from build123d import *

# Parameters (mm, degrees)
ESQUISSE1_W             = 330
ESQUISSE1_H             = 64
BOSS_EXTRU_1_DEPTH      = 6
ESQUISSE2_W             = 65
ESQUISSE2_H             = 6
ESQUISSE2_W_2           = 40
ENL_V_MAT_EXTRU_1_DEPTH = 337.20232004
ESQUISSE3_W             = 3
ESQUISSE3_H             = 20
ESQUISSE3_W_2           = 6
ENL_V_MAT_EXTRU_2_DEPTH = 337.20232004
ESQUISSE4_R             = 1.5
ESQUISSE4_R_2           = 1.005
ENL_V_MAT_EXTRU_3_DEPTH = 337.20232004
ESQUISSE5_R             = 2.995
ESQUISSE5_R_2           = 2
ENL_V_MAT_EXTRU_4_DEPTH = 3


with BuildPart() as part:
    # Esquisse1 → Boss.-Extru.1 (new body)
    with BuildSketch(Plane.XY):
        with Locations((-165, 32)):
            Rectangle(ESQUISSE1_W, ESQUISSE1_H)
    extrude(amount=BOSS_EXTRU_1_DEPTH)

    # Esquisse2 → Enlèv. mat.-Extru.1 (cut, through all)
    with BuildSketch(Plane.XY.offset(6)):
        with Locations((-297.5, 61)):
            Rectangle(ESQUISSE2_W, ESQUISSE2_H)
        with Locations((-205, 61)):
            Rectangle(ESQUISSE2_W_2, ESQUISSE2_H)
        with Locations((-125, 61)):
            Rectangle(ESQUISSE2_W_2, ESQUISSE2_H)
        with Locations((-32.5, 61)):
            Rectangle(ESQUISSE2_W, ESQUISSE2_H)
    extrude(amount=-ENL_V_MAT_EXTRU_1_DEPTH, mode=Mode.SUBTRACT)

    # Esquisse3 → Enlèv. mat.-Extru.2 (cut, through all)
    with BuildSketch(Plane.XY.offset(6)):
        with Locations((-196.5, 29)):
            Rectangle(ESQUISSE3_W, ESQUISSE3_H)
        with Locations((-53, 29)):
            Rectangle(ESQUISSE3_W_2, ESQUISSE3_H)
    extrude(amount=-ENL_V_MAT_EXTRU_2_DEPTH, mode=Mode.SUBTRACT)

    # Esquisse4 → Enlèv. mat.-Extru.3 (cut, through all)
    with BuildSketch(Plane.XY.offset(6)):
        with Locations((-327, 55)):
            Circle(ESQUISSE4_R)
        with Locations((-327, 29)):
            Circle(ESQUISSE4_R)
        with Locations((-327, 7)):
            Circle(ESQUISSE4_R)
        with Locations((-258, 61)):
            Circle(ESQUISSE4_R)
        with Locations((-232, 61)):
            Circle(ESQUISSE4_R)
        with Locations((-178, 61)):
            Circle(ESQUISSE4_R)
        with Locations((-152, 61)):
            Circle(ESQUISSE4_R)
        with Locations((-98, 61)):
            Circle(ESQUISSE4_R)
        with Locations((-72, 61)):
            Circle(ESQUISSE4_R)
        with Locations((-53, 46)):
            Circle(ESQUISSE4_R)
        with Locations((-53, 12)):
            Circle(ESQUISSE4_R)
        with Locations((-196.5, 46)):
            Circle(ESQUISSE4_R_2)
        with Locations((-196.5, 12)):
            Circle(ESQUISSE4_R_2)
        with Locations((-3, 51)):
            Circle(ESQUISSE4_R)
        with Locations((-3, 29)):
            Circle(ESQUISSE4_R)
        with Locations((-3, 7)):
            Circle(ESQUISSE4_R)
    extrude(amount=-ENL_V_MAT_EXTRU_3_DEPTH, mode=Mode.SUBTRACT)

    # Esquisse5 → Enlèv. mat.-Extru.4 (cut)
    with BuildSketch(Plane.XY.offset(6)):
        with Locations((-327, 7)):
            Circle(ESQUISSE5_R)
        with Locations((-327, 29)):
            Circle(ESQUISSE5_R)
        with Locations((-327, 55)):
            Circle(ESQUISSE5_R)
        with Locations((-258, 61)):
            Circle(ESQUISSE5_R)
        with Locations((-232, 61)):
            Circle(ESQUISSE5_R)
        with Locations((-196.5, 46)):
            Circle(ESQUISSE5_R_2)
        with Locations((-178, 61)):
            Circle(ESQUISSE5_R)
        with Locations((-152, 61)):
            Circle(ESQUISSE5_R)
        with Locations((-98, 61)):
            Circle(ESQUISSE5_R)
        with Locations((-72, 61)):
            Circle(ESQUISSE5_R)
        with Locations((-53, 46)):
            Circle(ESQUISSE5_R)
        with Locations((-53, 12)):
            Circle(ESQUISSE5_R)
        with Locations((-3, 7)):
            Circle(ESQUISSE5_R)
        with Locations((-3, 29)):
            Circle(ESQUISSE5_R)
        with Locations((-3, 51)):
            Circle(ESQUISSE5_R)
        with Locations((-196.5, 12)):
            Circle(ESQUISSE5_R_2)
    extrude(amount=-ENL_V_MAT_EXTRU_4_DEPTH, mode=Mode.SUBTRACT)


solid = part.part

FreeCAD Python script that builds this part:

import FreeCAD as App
import Part
import Sketcher
from FreeCAD import Vector

doc = App.newDocument("Part")
body = doc.addObject("PartDesign::Body", "Body")

# Sketch on XY plane
sketch1 = body.newObject("Sketcher::SketchObject", "Sketch")
sketch1.AttachmentSupport = (doc.getObject("XY_Plane"), [""])
sketch1.MapMode = "FlatFace"
sketch1.addGeometry([
    Part.LineSegment(Vector(-330, 64, 0), Vector(-330, 0, 0)),
    Part.LineSegment(Vector(-330, 0, 0), Vector(0, 0, 0)),
    Part.LineSegment(Vector(0, 0, 0), Vector(0, 64, 0)),
    Part.LineSegment(Vector(0, 64, 0), Vector(-330, 64, 0)),
], False)
sketch1.addConstraint([
    Sketcher.Constraint("Coincident", 0, 2, 1, 1),
    Sketcher.Constraint("Coincident", 1, 2, 2, 1),
    Sketcher.Constraint("Coincident", 2, 2, 3, 1),
    Sketcher.Constraint("Coincident", 3, 2, 0, 1),
    Sketcher.Constraint("Vertical", 0),
    Sketcher.Constraint("Horizontal", 1),
    Sketcher.Constraint("Vertical", 2),
    Sketcher.Constraint("Horizontal", 3),
    Sketcher.Constraint("Coincident", 1, 2, -1, 1),
    Sketcher.Constraint("DistanceX", 1, 1, 1, 2, 330.0),
    Sketcher.Constraint("DistanceY", 0, 2, 0, 1, 64.0),
])
pad1 = body.newObject("PartDesign::Pad", "Pad")
pad1.Profile = sketch1
pad1.Length = 6

# Sketch on XY plane
sketch2 = body.newObject("Sketcher::SketchObject", "Sketch001")
sketch2.AttachmentSupport = (doc.getObject("XY_Plane"), [""])
sketch2.MapMode = "FlatFace"
sketch2.AttachmentOffset = App.Placement(Vector(0, 0, 6), App.Rotation())
sketch2.addGeometry([
    Part.LineSegment(Vector(-330, 64, 0), Vector(-330, 58, 0)),  # 0
    Part.LineSegment(Vector(-330, 58, 0), Vector(-265, 58, 0)),  # 1
    Part.LineSegment(Vector(-265, 58, 0), Vector(-265, 64, 0)),  # 2
    Part.LineSegment(Vector(-265, 64, 0), Vector(-330, 64, 0)),  # 3
    Part.LineSegment(Vector(-225, 64, 0), Vector(-225, 58, 0)),  # 4
    Part.LineSegment(Vector(-225, 58, 0), Vector(-185, 58, 0)),  # 5
    Part.LineSegment(Vector(-185, 58, 0), Vector(-185, 64, 0)),  # 6
    Part.LineSegment(Vector(-185, 64, 0), Vector(-225, 64, 0)),  # 7
    Part.LineSegment(Vector(-145, 64, 0), Vector(-145, 58, 0)),  # 8
    Part.LineSegment(Vector(-145, 58, 0), Vector(-105, 58, 0)),  # 9
    Part.LineSegment(Vector(-105, 58, 0), Vector(-105, 64, 0)),  # 10
    Part.LineSegment(Vector(-105, 64, 0), Vector(-145, 64, 0)),  # 11
    Part.LineSegment(Vector(-65, 64, 0), Vector(-65, 58, 0)),  # 12
    Part.LineSegment(Vector(-65, 58, 0), Vector(0, 58, 0)),  # 13
    Part.LineSegment(Vector(0, 58, 0), Vector(0, 64, 0)),  # 14
    Part.LineSegment(Vector(0, 64, 0), Vector(-65, 64, 0)),  # 15
], False)
sketch2.addConstraint([
    Sketcher.Constraint("Coincident", 0, 2, 1, 1),
    Sketcher.Constraint("Coincident", 1, 2, 2, 1),
    Sketcher.Constraint("Coincident", 2, 2, 3, 1),
    Sketcher.Constraint("Coincident", 3, 2, 0, 1),
    Sketcher.Constraint("Coincident", 4, 2, 5, 1),
    Sketcher.Constraint("Coincident", 5, 2, 6, 1),
    Sketcher.Constraint("Coincident", 6, 2, 7, 1),
    Sketcher.Constraint("Coincident", 7, 2, 4, 1),
    Sketcher.Constraint("Coincident", 8, 2, 9, 1),
    Sketcher.Constraint("Coincident", 9, 2, 10, 1),
    Sketcher.Constraint("Coincident", 10, 2, 11, 1),
    Sketcher.Constraint("Coincident", 11, 2, 8, 1),
    Sketcher.Constraint("Coincident", 12, 2, 13, 1),
    Sketcher.Constraint("Coincident", 13, 2, 14, 1),
    Sketcher.Constraint("Coincident", 14, 2, 15, 1),
    Sketcher.Constraint("Coincident", 15, 2, 12, 1),
    Sketcher.Constraint("Vertical", 0),
    Sketcher.Constraint("Horizontal", 1),
    Sketcher.Constraint("Vertical", 2),
    Sketcher.Constraint("Horizontal", 3),
    Sketcher.Constraint("Vertical", 4),
    Sketcher.Constraint("Horizontal", 5),
    Sketcher.Constraint("Vertical", 6),
    Sketcher.Constraint("Horizontal", 7),
    Sketcher.Constraint("Vertical", 8),
    Sketcher.Constraint("Horizontal", 9),
    Sketcher.Constraint("Vertical", 10),
    Sketcher.Constraint("Horizontal", 11),
    Sketcher.Constraint("Vertical", 12),
    Sketcher.Constraint("Horizontal", 13),
    Sketcher.Constraint("Vertical", 14),
    Sketcher.Constraint("Horizontal", 15),
    Sketcher.Constraint("PointOnObject", 13, 2, -2),
    Sketcher.Constraint("Horizontal", 1, 2, 4, 2),
    Sketcher.Constraint("Horizontal", 3, 2, 6, 2),
    Sketcher.Constraint("Horizontal", 5, 2, 8, 2),
    Sketcher.Constraint("Horizontal", 7, 2, 10, 2),
    Sketcher.Constraint("Horizontal", 9, 2, 12, 2),
    Sketcher.Constraint("Horizontal", 11, 2, 14, 2),
    Sketcher.Constraint("Equal", 7, 9),
    Sketcher.Constraint("Equal", 3, 13),
    Sketcher.Constraint("DistanceX", 1, 1, 1, 2, 65.0),
    Sketcher.Constraint("DistanceX", 5, 1, 5, 2, 40.0),
    Sketcher.Constraint("DistanceY", 0, 2, 0, 1, 6.0),
    Sketcher.Constraint("DistanceX", 0, 2, -1, 1, 330.0),
    Sketcher.Constraint("DistanceY", -1, 1, 0, 2, 58.0),
    Sketcher.Constraint("DistanceX", 4, 2, -1, 1, 225.0),
    Sketcher.Constraint("DistanceX", 8, 2, -1, 1, 145.0),
])
pocket1 = body.newObject("PartDesign::Pocket", "Pocket")
pocket1.Profile = sketch2
pocket1.Type = "ThroughAll"

# Sketch on XY plane
sketch3 = body.newObject("Sketcher::SketchObject", "Sketch002")
sketch3.AttachmentSupport = (doc.getObject("XY_Plane"), [""])
sketch3.MapMode = "FlatFace"
sketch3.AttachmentOffset = App.Placement(Vector(0, 0, 6), App.Rotation())
sketch3.addGeometry([
    Part.LineSegment(Vector(-198, 39, 0), Vector(-198, 19, 0)),  # 0
    Part.LineSegment(Vector(-198, 19, 0), Vector(-195, 19, 0)),  # 1
    Part.LineSegment(Vector(-195, 19, 0), Vector(-195, 39, 0)),  # 2
    Part.LineSegment(Vector(-195, 39, 0), Vector(-198, 39, 0)),  # 3
    Part.LineSegment(Vector(-56, 39, 0), Vector(-56, 19, 0)),  # 4
    Part.LineSegment(Vector(-56, 19, 0), Vector(-50, 19, 0)),  # 5
    Part.LineSegment(Vector(-50, 19, 0), Vector(-50, 39, 0)),  # 6
    Part.LineSegment(Vector(-50, 39, 0), Vector(-56, 39, 0)),  # 7
], False)
sketch3.addConstraint([
    Sketcher.Constraint("Coincident", 0, 2, 1, 1),
    Sketcher.Constraint("Coincident", 1, 2, 2, 1),
    Sketcher.Constraint("Coincident", 2, 2, 3, 1),
    Sketcher.Constraint("Coincident", 3, 2, 0, 1),
    Sketcher.Constraint("Coincident", 4, 2, 5, 1),
    Sketcher.Constraint("Coincident", 5, 2, 6, 1),
    Sketcher.Constraint("Coincident", 6, 2, 7, 1),
    Sketcher.Constraint("Coincident", 7, 2, 4, 1),
    Sketcher.Constraint("Vertical", 0),
    Sketcher.Constraint("Horizontal", 1),
    Sketcher.Constraint("Vertical", 2),
    Sketcher.Constraint("Horizontal", 3),
    Sketcher.Constraint("Vertical", 4),
    Sketcher.Constraint("Horizontal", 5),
    Sketcher.Constraint("Vertical", 6),
    Sketcher.Constraint("Horizontal", 7),
    Sketcher.Constraint("Horizontal", 1, 2, 4, 2),
    Sketcher.Constraint("Horizontal", 3, 2, 6, 2),
    Sketcher.Constraint("DistanceX", 1, 1, 1, 2, 3.0),
    Sketcher.Constraint("DistanceX", 5, 1, 5, 2, 6.0),
    Sketcher.Constraint("DistanceY", 0, 2, 0, 1, 20.0),
    Sketcher.Constraint("DistanceX", 0, 2, -1, 1, 198.0),
    Sketcher.Constraint("DistanceY", -1, 1, 0, 2, 19.0),
    Sketcher.Constraint("DistanceX", 4, 2, -1, 1, 56.0),
])
pocket2 = body.newObject("PartDesign::Pocket", "Pocket001")
pocket2.Profile = sketch3
pocket2.Type = "ThroughAll"

# Sketch on XY plane
sketch4 = body.newObject("Sketcher::SketchObject", "Sketch003")
sketch4.AttachmentSupport = (doc.getObject("XY_Plane"), [""])
sketch4.MapMode = "FlatFace"
sketch4.AttachmentOffset = App.Placement(Vector(0, 0, 6), App.Rotation())
sketch4.addGeometry([
    Part.Circle(Vector(-327, 55, 0), Vector(0, 0, 1), 1.5),  # 0
    Part.Circle(Vector(-327, 29, 0), Vector(0, 0, 1), 1.5),  # 1
    Part.Circle(Vector(-327, 7, 0), Vector(0, 0, 1), 1.5),  # 2
    Part.Circle(Vector(-258, 61, 0), Vector(0, 0, 1), 1.5),  # 3
    Part.Circle(Vector(-232, 61, 0), Vector(0, 0, 1), 1.5),  # 4
    Part.Circle(Vector(-178, 61, 0), Vector(0, 0, 1), 1.5),  # 5
    Part.Circle(Vector(-152, 61, 0), Vector(0, 0, 1), 1.5),  # 6
    Part.Circle(Vector(-98, 61, 0), Vector(0, 0, 1), 1.5),  # 7
    Part.Circle(Vector(-72, 61, 0), Vector(0, 0, 1), 1.5),  # 8
    Part.Circle(Vector(-53, 46, 0), Vector(0, 0, 1), 1.5),  # 9
    Part.Circle(Vector(-53, 12, 0), Vector(0, 0, 1), 1.5),  # 10
    Part.Circle(Vector(-196.5, 46, 0), Vector(0, 0, 1), 1),  # 11
    Part.Circle(Vector(-196.5, 12, 0), Vector(0, 0, 1), 1),  # 12
    Part.Circle(Vector(-3, 51, 0), Vector(0, 0, 1), 1.5),  # 13
    Part.Circle(Vector(-3, 29, 0), Vector(0, 0, 1), 1.5),  # 14
    Part.Circle(Vector(-3, 7, 0), Vector(0, 0, 1), 1.5),  # 15
], False)
sketch4.addConstraint([
    Sketcher.Constraint("Equal", 0, 1),
    Sketcher.Constraint("Equal", 1, 2),
    Sketcher.Constraint("Equal", 2, 3),
    Sketcher.Constraint("Equal", 3, 4),
    Sketcher.Constraint("Equal", 4, 5),
    Sketcher.Constraint("Equal", 5, 6),
    Sketcher.Constraint("Equal", 6, 7),
    Sketcher.Constraint("Equal", 7, 8),
    Sketcher.Constraint("Equal", 8, 9),
    Sketcher.Constraint("Equal", 9, 10),
    Sketcher.Constraint("Equal", 11, 12),
    Sketcher.Constraint("Equal", 10, 13),
    Sketcher.Constraint("Equal", 13, 14),
    Sketcher.Constraint("Equal", 14, 15),
    Sketcher.Constraint("Horizontal", 3, 3, 4, 3),
    Sketcher.Constraint("Horizontal", 4, 3, 5, 3),
    Sketcher.Constraint("Horizontal", 5, 3, 6, 3),
    Sketcher.Constraint("Horizontal", 6, 3, 7, 3),
    Sketcher.Constraint("Horizontal", 7, 3, 8, 3),
    Sketcher.Constraint("Horizontal", 9, 3, 11, 3),
    Sketcher.Constraint("Horizontal", 10, 3, 12, 3),
    Sketcher.Constraint("Horizontal", 1, 3, 14, 3),
    Sketcher.Constraint("Horizontal", 2, 3, 15, 3),
    Sketcher.Constraint("Vertical", 0, 3, 1, 3),
    Sketcher.Constraint("Vertical", 1, 3, 2, 3),
    Sketcher.Constraint("Vertical", 9, 3, 10, 3),
    Sketcher.Constraint("Vertical", 11, 3, 12, 3),
    Sketcher.Constraint("Vertical", 13, 3, 14, 3),
    Sketcher.Constraint("Vertical", 14, 3, 15, 3),
    Sketcher.Constraint("Diameter", 0, 3.0),
    Sketcher.Constraint("Diameter", 11, 2.01),
    Sketcher.Constraint("DistanceX", 0, 3, -1, 1, 327.0),
    Sketcher.Constraint("DistanceY", -1, 1, 0, 3, 55.0),
    Sketcher.Constraint("DistanceY", -1, 1, 1, 3, 29.0),
    Sketcher.Constraint("DistanceY", -1, 1, 2, 3, 7.0),
    Sketcher.Constraint("DistanceX", 3, 3, -1, 1, 258.0),
    Sketcher.Constraint("DistanceY", -1, 1, 3, 3, 61.0),
    Sketcher.Constraint("DistanceX", 4, 3, -1, 1, 232.0),
    Sketcher.Constraint("DistanceX", 5, 3, -1, 1, 178.0),
    Sketcher.Constraint("DistanceX", 6, 3, -1, 1, 152.0),
    Sketcher.Constraint("DistanceX", 7, 3, -1, 1, 98.0),
    Sketcher.Constraint("DistanceX", 8, 3, -1, 1, 72.0),
    Sketcher.Constraint("DistanceX", 9, 3, -1, 1, 53.0),
    Sketcher.Constraint("DistanceY", -1, 1, 9, 3, 46.0),
    Sketcher.Constraint("DistanceY", -1, 1, 10, 3, 12.0),
    Sketcher.Constraint("DistanceX", 13, 3, -1, 1, 3.0),
    Sketcher.Constraint("DistanceY", -1, 1, 13, 3, 51.0),
    Sketcher.Constraint("DistanceX", 11, 3, -1, 1, 196.5),
])
pocket3 = body.newObject("PartDesign::Pocket", "Pocket002")
pocket3.Profile = sketch4
pocket3.Type = "ThroughAll"

# Sketch on XY plane
sketch5 = body.newObject("Sketcher::SketchObject", "Sketch004")
sketch5.AttachmentSupport = (doc.getObject("XY_Plane"), [""])
sketch5.MapMode = "FlatFace"
sketch5.AttachmentOffset = App.Placement(Vector(0, 0, 6), App.Rotation())
sketch5.addGeometry([
    Part.Circle(Vector(-327, 7, 0), Vector(0, 0, 1), 3),  # 0
    Part.Circle(Vector(-327, 29, 0), Vector(0, 0, 1), 3),  # 1
    Part.Circle(Vector(-327, 55, 0), Vector(0, 0, 1), 3),  # 2
    Part.Circle(Vector(-258, 61, 0), Vector(0, 0, 1), 3),  # 3
    Part.Circle(Vector(-232, 61, 0), Vector(0, 0, 1), 3),  # 4
    Part.Circle(Vector(-196.5, 46, 0), Vector(0, 0, 1), 2),  # 5
    Part.Circle(Vector(-178, 61, 0), Vector(0, 0, 1), 3),  # 6
    Part.Circle(Vector(-152, 61, 0), Vector(0, 0, 1), 3),  # 7
    Part.Circle(Vector(-98, 61, 0), Vector(0, 0, 1), 3),  # 8
    Part.Circle(Vector(-72, 61, 0), Vector(0, 0, 1), 3),  # 9
    Part.Circle(Vector(-53, 46, 0), Vector(0, 0, 1), 3),  # 10
    Part.Circle(Vector(-53, 12, 0), Vector(0, 0, 1), 3),  # 11
    Part.Circle(Vector(-3, 7, 0), Vector(0, 0, 1), 3),  # 12
    Part.Circle(Vector(-3, 29, 0), Vector(0, 0, 1), 3),  # 13
    Part.Circle(Vector(-3, 51, 0), Vector(0, 0, 1), 3),  # 14
    Part.Circle(Vector(-196.5, 12, 0), Vector(0, 0, 1), 2),  # 15
], False)
sketch5.addConstraint([
    Sketcher.Constraint("Equal", 0, 1),
    Sketcher.Constraint("Equal", 1, 2),
    Sketcher.Constraint("Equal", 2, 3),
    Sketcher.Constraint("Equal", 3, 4),
    Sketcher.Constraint("Equal", 4, 6),
    Sketcher.Constraint("Equal", 6, 7),
    Sketcher.Constraint("Equal", 7, 8),
    Sketcher.Constraint("Equal", 8, 9),
    Sketcher.Constraint("Equal", 9, 10),
    Sketcher.Constraint("Equal", 10, 11),
    Sketcher.Constraint("Equal", 11, 12),
    Sketcher.Constraint("Equal", 12, 13),
    Sketcher.Constraint("Equal", 13, 14),
    Sketcher.Constraint("Equal", 5, 15),
    Sketcher.Constraint("Horizontal", 3, 3, 4, 3),
    Sketcher.Constraint("Horizontal", 4, 3, 6, 3),
    Sketcher.Constraint("Horizontal", 6, 3, 7, 3),
    Sketcher.Constraint("Horizontal", 7, 3, 8, 3),
    Sketcher.Constraint("Horizontal", 8, 3, 9, 3),
    Sketcher.Constraint("Horizontal", 5, 3, 10, 3),
    Sketcher.Constraint("Horizontal", 0, 3, 12, 3),
    Sketcher.Constraint("Horizontal", 1, 3, 13, 3),
    Sketcher.Constraint("Horizontal", 11, 3, 15, 3),
    Sketcher.Constraint("Vertical", 0, 3, 1, 3),
    Sketcher.Constraint("Vertical", 1, 3, 2, 3),
    Sketcher.Constraint("Vertical", 10, 3, 11, 3),
    Sketcher.Constraint("Vertical", 12, 3, 13, 3),
    Sketcher.Constraint("Vertical", 13, 3, 14, 3),
    Sketcher.Constraint("Vertical", 5, 3, 15, 3),
    Sketcher.Constraint("Diameter", 5, 4.0),
    Sketcher.Constraint("Diameter", 0, 5.99),
    Sketcher.Constraint("DistanceX", 0, 3, -1, 1, 327.0),
    Sketcher.Constraint("DistanceY", -1, 1, 0, 3, 7.0),
    Sketcher.Constraint("DistanceY", -1, 1, 1, 3, 29.0),
    Sketcher.Constraint("DistanceY", -1, 1, 2, 3, 55.0),
    Sketcher.Constraint("DistanceX", 3, 3, -1, 1, 258.0),
    Sketcher.Constraint("DistanceY", -1, 1, 3, 3, 61.0),
    Sketcher.Constraint("DistanceX", 4, 3, -1, 1, 232.0),
    Sketcher.Constraint("DistanceY", -1, 1, 5, 3, 46.0),
    Sketcher.Constraint("DistanceX", 6, 3, -1, 1, 178.0),
    Sketcher.Constraint("DistanceX", 7, 3, -1, 1, 152.0),
    Sketcher.Constraint("DistanceX", 8, 3, -1, 1, 98.0),
    Sketcher.Constraint("DistanceX", 9, 3, -1, 1, 72.0),
    Sketcher.Constraint("DistanceX", 10, 3, -1, 1, 53.0),
    Sketcher.Constraint("DistanceY", -1, 1, 11, 3, 12.0),
    Sketcher.Constraint("DistanceX", 12, 3, -1, 1, 3.0),
    Sketcher.Constraint("DistanceY", -1, 1, 14, 3, 51.0),
    Sketcher.Constraint("DistanceX", 5, 3, -1, 1, 196.5),
])
pocket4 = body.newObject("PartDesign::Pocket", "Pocket003")
pocket4.Profile = sketch5
pocket4.Length = 3

doc.recompute()
